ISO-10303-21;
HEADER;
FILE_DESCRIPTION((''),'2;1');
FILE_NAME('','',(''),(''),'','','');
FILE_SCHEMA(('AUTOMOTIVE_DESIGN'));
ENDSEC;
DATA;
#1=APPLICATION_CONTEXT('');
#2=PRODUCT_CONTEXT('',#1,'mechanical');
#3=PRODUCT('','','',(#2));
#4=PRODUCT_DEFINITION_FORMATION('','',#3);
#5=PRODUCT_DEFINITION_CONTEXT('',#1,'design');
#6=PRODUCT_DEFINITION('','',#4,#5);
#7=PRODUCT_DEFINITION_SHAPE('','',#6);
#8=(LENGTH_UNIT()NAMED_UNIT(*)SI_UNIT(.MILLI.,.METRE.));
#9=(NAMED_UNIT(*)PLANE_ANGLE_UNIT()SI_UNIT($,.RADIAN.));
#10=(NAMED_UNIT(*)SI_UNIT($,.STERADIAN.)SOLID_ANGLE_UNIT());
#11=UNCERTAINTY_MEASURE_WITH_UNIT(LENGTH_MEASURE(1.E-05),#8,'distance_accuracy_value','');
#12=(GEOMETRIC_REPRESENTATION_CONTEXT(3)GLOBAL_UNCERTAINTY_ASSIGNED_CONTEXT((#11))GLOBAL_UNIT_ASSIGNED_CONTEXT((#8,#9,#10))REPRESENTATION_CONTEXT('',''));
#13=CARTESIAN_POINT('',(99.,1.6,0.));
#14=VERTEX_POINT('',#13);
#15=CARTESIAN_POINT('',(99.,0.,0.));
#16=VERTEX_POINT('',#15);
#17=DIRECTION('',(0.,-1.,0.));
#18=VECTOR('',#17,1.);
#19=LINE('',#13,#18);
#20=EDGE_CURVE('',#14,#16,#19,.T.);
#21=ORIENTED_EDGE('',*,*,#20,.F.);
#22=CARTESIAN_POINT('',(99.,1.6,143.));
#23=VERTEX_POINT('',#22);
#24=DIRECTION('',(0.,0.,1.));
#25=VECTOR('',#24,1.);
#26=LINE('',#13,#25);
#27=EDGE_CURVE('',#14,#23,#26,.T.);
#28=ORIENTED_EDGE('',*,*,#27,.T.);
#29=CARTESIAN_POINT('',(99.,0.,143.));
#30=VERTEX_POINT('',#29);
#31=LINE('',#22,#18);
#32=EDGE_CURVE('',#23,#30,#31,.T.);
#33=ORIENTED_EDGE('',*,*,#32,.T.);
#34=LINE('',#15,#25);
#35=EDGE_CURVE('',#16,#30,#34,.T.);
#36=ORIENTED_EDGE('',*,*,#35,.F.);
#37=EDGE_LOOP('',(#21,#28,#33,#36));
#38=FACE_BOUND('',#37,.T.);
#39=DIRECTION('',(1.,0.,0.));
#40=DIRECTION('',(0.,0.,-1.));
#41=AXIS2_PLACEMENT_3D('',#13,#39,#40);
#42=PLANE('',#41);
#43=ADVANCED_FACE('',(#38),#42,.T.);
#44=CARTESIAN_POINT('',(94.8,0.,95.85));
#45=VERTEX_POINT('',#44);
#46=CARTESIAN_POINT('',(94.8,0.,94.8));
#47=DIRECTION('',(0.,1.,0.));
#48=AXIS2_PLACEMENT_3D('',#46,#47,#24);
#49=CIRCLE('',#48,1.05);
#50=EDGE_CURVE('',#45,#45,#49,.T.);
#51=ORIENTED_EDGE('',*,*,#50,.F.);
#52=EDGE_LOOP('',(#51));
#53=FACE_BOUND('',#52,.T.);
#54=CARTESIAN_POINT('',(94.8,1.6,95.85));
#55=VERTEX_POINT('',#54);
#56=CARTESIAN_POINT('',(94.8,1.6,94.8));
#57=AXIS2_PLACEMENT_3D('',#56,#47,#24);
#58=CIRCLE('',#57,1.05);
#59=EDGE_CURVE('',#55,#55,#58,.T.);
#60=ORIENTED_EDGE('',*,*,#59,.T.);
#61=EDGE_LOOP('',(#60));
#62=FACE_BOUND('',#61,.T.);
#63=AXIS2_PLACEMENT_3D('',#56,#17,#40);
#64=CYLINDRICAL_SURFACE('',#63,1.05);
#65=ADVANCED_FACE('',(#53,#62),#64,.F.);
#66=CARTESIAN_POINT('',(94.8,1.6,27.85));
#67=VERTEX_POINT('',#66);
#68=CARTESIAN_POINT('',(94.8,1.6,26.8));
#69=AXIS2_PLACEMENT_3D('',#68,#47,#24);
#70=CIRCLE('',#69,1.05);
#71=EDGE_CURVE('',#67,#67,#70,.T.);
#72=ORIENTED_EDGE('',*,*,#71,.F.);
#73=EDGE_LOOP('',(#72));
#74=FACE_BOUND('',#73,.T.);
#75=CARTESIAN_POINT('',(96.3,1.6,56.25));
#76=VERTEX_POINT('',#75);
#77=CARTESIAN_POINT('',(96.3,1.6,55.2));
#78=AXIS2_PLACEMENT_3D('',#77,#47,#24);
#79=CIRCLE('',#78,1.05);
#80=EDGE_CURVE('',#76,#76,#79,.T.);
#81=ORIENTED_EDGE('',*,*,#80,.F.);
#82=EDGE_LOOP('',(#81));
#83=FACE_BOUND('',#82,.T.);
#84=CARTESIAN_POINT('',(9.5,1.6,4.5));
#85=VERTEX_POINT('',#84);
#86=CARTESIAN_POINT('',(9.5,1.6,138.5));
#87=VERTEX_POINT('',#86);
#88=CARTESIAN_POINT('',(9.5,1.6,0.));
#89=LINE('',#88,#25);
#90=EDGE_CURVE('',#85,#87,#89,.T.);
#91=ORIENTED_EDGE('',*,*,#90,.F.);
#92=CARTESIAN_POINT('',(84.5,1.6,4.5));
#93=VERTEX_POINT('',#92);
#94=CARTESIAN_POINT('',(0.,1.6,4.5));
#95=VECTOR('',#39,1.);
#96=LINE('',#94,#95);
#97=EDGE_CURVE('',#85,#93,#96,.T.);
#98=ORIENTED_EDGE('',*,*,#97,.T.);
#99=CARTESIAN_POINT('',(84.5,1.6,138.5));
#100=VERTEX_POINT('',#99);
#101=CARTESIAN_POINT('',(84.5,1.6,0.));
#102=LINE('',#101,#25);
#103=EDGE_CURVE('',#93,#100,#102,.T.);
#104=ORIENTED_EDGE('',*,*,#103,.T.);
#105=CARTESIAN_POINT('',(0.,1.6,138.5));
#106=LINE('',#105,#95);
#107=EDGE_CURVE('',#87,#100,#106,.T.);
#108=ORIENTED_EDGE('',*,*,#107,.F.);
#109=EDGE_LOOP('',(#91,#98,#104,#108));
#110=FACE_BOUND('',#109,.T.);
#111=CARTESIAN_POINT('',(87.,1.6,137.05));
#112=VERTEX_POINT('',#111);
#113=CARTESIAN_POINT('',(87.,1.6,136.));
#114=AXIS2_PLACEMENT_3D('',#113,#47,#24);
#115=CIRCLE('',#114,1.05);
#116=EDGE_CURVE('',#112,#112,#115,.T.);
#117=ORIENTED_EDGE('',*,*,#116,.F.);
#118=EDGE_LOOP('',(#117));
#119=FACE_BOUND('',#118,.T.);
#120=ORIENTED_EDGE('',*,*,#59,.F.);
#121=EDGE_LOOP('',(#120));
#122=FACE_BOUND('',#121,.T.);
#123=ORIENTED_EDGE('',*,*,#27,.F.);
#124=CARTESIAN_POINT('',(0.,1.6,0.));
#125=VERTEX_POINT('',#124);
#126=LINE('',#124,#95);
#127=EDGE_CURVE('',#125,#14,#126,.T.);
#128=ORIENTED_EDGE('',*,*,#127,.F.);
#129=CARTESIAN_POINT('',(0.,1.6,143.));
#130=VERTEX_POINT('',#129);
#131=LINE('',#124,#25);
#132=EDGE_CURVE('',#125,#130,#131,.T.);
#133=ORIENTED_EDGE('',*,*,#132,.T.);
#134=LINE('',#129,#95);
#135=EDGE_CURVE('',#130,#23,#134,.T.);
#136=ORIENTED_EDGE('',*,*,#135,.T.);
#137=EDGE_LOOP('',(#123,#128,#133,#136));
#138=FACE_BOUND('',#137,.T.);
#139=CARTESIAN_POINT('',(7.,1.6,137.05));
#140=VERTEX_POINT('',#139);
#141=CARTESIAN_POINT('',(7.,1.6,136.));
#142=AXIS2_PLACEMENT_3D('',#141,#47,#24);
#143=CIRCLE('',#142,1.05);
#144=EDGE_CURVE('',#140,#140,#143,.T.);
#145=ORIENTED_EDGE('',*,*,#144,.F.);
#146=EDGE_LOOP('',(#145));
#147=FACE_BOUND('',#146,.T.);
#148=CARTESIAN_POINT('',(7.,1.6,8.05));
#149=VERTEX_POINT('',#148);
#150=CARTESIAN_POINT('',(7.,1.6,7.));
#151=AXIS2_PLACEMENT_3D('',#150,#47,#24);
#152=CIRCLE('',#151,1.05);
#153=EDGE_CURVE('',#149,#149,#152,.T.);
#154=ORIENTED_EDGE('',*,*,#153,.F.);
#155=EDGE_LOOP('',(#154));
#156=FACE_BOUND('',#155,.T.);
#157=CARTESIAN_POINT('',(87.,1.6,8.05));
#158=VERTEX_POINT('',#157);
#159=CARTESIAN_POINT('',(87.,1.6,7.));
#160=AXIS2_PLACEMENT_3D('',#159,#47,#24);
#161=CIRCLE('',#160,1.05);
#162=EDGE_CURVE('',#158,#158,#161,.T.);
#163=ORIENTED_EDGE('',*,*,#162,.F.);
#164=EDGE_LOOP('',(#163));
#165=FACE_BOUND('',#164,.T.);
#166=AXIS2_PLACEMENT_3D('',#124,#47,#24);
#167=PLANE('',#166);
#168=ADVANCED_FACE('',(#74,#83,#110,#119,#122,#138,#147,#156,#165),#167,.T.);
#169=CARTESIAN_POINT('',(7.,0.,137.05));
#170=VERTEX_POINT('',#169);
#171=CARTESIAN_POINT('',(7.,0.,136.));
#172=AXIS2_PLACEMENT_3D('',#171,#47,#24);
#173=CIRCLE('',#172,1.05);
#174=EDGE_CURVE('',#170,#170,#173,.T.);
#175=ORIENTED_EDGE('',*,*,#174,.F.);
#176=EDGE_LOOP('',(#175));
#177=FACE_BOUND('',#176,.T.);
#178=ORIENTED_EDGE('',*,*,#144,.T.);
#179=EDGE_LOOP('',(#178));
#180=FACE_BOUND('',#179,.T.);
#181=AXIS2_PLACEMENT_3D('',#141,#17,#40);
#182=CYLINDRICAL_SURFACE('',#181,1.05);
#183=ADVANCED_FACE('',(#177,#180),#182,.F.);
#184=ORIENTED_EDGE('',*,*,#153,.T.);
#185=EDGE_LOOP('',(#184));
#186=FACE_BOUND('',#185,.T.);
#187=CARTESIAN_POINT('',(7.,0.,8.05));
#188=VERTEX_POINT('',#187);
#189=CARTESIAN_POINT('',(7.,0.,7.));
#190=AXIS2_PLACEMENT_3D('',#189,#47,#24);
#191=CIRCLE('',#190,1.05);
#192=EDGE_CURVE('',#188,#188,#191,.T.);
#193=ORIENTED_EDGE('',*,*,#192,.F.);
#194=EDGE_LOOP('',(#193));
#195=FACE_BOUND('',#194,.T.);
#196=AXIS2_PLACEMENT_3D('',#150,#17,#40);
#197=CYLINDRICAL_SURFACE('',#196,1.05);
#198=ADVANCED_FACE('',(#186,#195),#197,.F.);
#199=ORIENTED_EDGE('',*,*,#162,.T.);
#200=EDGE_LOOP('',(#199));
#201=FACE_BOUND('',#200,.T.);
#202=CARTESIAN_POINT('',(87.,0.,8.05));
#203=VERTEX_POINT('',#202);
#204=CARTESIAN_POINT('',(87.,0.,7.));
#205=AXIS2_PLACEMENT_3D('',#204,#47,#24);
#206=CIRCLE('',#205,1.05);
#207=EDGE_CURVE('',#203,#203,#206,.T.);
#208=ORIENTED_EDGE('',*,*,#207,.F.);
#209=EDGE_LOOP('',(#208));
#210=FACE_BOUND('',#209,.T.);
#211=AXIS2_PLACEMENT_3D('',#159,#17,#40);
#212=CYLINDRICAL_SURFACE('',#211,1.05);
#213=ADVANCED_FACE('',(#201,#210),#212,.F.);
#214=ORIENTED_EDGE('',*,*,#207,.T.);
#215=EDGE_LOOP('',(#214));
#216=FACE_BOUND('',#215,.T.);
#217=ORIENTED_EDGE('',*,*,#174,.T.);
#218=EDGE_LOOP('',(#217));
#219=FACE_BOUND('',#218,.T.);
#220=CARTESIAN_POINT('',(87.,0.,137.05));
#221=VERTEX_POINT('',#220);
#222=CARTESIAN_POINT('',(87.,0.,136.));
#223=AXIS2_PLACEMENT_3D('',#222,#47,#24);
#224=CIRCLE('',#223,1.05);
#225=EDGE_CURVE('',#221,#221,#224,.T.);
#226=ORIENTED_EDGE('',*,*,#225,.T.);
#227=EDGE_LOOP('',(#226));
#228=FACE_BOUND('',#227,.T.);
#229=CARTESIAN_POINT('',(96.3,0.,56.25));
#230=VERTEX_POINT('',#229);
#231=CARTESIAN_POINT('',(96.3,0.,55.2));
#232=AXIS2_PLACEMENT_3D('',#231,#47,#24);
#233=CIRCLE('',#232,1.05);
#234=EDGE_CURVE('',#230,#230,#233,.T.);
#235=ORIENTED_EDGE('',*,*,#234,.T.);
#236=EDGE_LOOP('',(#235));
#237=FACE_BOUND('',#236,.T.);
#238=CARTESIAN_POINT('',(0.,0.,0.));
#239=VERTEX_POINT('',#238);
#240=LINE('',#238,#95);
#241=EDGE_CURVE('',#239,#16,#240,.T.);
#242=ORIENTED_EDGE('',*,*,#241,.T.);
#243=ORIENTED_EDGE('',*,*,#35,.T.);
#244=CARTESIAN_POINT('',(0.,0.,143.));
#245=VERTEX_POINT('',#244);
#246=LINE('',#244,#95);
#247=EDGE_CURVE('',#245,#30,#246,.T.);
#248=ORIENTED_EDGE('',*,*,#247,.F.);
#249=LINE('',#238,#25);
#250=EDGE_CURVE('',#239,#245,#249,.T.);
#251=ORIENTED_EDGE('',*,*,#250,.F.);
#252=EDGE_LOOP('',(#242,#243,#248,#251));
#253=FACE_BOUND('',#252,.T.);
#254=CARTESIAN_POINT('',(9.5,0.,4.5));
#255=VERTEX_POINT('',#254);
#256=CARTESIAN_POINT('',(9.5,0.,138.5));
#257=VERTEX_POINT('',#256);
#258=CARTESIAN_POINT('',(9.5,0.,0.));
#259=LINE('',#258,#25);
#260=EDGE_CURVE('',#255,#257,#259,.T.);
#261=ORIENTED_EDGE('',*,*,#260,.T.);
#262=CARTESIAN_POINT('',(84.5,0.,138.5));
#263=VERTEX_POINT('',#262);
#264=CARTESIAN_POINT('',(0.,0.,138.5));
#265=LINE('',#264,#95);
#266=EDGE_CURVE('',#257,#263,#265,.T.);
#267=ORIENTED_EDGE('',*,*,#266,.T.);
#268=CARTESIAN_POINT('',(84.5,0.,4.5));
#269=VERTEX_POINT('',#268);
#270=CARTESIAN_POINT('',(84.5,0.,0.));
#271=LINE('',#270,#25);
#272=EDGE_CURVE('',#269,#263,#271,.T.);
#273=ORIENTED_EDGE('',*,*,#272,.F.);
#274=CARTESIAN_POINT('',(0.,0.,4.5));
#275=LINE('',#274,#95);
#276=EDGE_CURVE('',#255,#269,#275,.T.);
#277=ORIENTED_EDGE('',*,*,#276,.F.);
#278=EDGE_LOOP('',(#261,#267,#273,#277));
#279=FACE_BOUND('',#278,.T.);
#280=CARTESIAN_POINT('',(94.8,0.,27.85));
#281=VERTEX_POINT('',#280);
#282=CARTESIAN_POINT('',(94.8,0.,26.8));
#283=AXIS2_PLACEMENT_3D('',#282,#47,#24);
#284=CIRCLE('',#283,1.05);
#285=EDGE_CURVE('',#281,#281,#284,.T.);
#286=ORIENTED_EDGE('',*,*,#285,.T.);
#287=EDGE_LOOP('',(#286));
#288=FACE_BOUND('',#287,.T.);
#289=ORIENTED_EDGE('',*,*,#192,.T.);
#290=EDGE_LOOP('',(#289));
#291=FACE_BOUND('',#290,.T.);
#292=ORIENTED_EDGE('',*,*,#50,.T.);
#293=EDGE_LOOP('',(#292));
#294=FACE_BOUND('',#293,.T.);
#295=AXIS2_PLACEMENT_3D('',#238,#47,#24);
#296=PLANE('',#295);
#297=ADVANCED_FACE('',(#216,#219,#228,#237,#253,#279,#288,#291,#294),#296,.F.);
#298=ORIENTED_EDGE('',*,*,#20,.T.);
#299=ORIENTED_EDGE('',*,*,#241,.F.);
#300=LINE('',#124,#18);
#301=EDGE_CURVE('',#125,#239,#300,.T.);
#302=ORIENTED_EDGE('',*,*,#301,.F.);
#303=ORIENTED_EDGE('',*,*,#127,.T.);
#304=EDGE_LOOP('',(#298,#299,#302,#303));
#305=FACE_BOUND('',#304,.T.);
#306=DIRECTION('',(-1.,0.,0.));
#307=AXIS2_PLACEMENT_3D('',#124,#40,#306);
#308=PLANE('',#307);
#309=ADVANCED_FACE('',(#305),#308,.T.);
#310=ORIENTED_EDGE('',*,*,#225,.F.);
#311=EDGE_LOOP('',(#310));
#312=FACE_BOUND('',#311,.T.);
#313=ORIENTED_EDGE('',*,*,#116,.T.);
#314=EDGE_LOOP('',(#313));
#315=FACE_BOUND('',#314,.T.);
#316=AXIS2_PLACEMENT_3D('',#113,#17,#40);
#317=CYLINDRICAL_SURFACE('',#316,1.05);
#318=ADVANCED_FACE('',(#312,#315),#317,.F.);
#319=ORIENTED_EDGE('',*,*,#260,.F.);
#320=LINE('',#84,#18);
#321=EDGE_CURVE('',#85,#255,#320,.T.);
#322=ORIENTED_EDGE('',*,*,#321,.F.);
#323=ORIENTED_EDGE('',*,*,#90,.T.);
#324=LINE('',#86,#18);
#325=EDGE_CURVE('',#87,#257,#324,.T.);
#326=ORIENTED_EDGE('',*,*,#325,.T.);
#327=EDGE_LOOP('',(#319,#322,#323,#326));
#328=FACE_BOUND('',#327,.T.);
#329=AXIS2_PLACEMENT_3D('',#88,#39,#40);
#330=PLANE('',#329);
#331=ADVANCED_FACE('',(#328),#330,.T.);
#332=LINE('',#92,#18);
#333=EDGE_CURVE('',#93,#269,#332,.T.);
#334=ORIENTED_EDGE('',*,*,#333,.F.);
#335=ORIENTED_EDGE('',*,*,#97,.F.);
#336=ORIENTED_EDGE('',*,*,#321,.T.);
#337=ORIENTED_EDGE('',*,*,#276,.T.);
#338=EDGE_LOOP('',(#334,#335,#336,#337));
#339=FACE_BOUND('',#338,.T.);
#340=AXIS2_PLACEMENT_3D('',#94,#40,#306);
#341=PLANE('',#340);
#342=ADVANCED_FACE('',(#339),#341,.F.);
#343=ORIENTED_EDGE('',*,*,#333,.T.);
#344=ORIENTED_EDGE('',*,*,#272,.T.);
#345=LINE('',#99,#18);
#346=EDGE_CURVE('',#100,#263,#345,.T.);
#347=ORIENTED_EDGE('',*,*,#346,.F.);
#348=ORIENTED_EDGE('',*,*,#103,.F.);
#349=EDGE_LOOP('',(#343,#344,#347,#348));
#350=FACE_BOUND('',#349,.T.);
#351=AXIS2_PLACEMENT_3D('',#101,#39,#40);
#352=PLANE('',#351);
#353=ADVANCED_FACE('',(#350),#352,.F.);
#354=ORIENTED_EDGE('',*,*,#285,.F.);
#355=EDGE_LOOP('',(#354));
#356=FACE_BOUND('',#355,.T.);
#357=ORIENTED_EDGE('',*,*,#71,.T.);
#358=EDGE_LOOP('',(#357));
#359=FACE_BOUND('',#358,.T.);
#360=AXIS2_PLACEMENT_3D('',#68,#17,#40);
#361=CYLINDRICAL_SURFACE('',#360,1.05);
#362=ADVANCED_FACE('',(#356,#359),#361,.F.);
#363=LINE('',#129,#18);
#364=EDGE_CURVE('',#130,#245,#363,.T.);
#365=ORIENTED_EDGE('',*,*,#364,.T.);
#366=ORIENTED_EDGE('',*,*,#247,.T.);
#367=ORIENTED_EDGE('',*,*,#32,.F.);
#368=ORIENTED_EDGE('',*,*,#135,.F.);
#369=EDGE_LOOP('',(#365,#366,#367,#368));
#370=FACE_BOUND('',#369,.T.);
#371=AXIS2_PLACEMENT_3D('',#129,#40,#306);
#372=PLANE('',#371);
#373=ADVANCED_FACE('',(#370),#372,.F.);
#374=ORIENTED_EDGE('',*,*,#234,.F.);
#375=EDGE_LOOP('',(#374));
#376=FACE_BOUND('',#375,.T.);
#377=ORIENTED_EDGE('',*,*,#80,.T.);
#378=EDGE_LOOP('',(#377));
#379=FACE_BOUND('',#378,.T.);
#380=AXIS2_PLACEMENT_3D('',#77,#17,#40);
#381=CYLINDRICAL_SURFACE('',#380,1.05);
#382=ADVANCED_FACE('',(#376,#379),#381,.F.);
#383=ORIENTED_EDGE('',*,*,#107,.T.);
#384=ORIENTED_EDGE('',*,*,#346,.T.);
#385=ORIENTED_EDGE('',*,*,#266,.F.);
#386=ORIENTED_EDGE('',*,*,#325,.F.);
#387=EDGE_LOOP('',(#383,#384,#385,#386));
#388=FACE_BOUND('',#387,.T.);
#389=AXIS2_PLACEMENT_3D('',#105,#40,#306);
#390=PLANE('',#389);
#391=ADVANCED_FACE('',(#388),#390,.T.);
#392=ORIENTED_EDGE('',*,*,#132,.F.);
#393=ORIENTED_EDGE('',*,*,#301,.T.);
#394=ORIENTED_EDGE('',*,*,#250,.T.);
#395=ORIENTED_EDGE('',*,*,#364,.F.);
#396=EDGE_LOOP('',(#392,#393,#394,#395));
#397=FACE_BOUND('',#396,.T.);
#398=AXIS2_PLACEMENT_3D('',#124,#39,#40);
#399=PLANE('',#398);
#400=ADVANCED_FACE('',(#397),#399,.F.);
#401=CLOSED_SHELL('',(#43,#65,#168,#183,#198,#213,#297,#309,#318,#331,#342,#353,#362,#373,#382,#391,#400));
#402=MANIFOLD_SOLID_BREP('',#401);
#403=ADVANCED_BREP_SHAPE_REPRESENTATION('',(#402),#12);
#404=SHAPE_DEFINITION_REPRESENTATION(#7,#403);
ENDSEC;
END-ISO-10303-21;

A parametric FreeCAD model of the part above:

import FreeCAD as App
import Part
import Sketcher

V = App.Vector


def add_polygon(sketch, points):
    """Adds a closed chain of lines whose ends are joined by coincident constraints."""
    first, n = sketch.GeometryCount, len(points)
    for a, b in zip(points, points[1:] + points[:1]):
        sketch.addGeometry(Part.LineSegment(App.Vector(*a, 0), App.Vector(*b, 0)), False)
    for i in range(n):
        sketch.addConstraint(Sketcher.Constraint("Coincident", first + i, 2, first + (i + 1) % n, 1))

doc = App.newDocument("Part")
body = doc.addObject("PartDesign::Body", "Body")

# Sketch on XZ plane
sketch1 = body.newObject("Sketcher::SketchObject", "Sketch")
sketch1.AttachmentSupport = (doc.getObject("XZ_Plane"), [""])
sketch1.MapMode = "FlatFace"
add_polygon(sketch1, [(0, 0), (0, 143), (99, 143), (99, 0)])  # lines 0-3
sketch1.addGeometry(Part.Circle(V(7, 136, 0), V(0, 0, 1), 1.1), False)  # 4
sketch1.addGeometry(Part.Circle(V(87, 136, 0), V(0, 0, 1), 1.1), False)  # 5
sketch1.addGeometry(Part.Circle(V(94.8, 94.8, 0), V(0, 0, 1), 1.1), False)  # 6
add_polygon(sketch1, [(84.5, 138.5), (9.5, 138.5), (9.5, 4.5), (84.5, 4.5)])  # lines 7-10
sketch1.addGeometry(Part.Circle(V(7, 7, 0), V(0, 0, 1), 1.1), False)  # 11
sketch1.addGeometry(Part.Circle(V(96.3, 55.2, 0), V(0, 0, 1), 1.1), False)  # 12
sketch1.addGeometry(Part.Circle(V(94.8, 26.8, 0), V(0, 0, 1), 1.1), False)  # 13
sketch1.addGeometry(Part.Circle(V(87, 7, 0), V(0, 0, 1), 1.1), False)  # 14
sketch1.addConstraint([
    Sketcher.Constraint("Vertical", 0),
    Sketcher.Constraint("Horizontal", 1),
    Sketcher.Constraint("Vertical", 2),
    Sketcher.Constraint("Horizontal", 3),
    Sketcher.Constraint("Horizontal", 7),
    Sketcher.Constraint("Vertical", 8),
    Sketcher.Constraint("Horizontal", 9),
    Sketcher.Constraint("Vertical", 10),
    Sketcher.Constraint("Coincident", 3, 2, -1, 1),
    Sketcher.Constraint("Equal", 4, 5),
    Sketcher.Constraint("Equal", 5, 6),
    Sketcher.Constraint("Equal", 6, 11),
    Sketcher.Constraint("Equal", 11, 12),
    Sketcher.Constraint("Equal", 12, 13),
    Sketcher.Constraint("Equal", 13, 14),
    Sketcher.Constraint("Horizontal", 4, 3, 5, 3),
    Sketcher.Constraint("Horizontal", 11, 3, 14, 3),
    Sketcher.Constraint("Vertical", 4, 3, 11, 3),
    Sketcher.Constraint("Vertical", 6, 3, 13, 3),
    Sketcher.Constraint("Vertical", 5, 3, 14, 3),
    Sketcher.Constraint("Diameter", 4, 2.1),
    Sketcher.Constraint("DistanceX", 1, 1, 1, 2, 99.0),
    Sketcher.Constraint("DistanceX", 7, 2, 7, 1, 75.0),
    Sketcher.Constraint("DistanceY", 0, 1, 0, 2, 143.0),
    Sketcher.Constraint("DistanceY", 8, 2, 8, 1, 134.0),
    Sketcher.Constraint("DistanceX", -1, 1, 4, 3, 7.0),
    Sketcher.Constraint("DistanceY", -1, 1, 4, 3, 136.0),
    Sketcher.Constraint("DistanceX", -1, 1, 5, 3, 87.0),
    Sketcher.Constraint("DistanceY", -1, 1, 11, 3, 7.0),
    Sketcher.Constraint("DistanceY", 13, 3, 6, 3, 68.0),
    Sketcher.Constraint("DistanceX", -1, 1, 6, 3, 94.8),
    Sketcher.Constraint("DistanceY", -1, 1, 6, 3, 94.8),
    Sketcher.Constraint("DistanceX", -1, 1, 12, 3, 96.3),
    Sketcher.Constraint("DistanceY", -1, 1, 12, 3, 55.2),
    Sketcher.Constraint("DistanceX", -1, 1, 7, 2, 9.5),
    Sketcher.Constraint("DistanceY", -1, 1, 7, 2, 138.5),
])
pad1 = body.newObject("PartDesign::Pad", "Pad")
pad1.Profile = sketch1
pad1.Length = 1.6
pad1.Reversed = True

doc.recompute()
